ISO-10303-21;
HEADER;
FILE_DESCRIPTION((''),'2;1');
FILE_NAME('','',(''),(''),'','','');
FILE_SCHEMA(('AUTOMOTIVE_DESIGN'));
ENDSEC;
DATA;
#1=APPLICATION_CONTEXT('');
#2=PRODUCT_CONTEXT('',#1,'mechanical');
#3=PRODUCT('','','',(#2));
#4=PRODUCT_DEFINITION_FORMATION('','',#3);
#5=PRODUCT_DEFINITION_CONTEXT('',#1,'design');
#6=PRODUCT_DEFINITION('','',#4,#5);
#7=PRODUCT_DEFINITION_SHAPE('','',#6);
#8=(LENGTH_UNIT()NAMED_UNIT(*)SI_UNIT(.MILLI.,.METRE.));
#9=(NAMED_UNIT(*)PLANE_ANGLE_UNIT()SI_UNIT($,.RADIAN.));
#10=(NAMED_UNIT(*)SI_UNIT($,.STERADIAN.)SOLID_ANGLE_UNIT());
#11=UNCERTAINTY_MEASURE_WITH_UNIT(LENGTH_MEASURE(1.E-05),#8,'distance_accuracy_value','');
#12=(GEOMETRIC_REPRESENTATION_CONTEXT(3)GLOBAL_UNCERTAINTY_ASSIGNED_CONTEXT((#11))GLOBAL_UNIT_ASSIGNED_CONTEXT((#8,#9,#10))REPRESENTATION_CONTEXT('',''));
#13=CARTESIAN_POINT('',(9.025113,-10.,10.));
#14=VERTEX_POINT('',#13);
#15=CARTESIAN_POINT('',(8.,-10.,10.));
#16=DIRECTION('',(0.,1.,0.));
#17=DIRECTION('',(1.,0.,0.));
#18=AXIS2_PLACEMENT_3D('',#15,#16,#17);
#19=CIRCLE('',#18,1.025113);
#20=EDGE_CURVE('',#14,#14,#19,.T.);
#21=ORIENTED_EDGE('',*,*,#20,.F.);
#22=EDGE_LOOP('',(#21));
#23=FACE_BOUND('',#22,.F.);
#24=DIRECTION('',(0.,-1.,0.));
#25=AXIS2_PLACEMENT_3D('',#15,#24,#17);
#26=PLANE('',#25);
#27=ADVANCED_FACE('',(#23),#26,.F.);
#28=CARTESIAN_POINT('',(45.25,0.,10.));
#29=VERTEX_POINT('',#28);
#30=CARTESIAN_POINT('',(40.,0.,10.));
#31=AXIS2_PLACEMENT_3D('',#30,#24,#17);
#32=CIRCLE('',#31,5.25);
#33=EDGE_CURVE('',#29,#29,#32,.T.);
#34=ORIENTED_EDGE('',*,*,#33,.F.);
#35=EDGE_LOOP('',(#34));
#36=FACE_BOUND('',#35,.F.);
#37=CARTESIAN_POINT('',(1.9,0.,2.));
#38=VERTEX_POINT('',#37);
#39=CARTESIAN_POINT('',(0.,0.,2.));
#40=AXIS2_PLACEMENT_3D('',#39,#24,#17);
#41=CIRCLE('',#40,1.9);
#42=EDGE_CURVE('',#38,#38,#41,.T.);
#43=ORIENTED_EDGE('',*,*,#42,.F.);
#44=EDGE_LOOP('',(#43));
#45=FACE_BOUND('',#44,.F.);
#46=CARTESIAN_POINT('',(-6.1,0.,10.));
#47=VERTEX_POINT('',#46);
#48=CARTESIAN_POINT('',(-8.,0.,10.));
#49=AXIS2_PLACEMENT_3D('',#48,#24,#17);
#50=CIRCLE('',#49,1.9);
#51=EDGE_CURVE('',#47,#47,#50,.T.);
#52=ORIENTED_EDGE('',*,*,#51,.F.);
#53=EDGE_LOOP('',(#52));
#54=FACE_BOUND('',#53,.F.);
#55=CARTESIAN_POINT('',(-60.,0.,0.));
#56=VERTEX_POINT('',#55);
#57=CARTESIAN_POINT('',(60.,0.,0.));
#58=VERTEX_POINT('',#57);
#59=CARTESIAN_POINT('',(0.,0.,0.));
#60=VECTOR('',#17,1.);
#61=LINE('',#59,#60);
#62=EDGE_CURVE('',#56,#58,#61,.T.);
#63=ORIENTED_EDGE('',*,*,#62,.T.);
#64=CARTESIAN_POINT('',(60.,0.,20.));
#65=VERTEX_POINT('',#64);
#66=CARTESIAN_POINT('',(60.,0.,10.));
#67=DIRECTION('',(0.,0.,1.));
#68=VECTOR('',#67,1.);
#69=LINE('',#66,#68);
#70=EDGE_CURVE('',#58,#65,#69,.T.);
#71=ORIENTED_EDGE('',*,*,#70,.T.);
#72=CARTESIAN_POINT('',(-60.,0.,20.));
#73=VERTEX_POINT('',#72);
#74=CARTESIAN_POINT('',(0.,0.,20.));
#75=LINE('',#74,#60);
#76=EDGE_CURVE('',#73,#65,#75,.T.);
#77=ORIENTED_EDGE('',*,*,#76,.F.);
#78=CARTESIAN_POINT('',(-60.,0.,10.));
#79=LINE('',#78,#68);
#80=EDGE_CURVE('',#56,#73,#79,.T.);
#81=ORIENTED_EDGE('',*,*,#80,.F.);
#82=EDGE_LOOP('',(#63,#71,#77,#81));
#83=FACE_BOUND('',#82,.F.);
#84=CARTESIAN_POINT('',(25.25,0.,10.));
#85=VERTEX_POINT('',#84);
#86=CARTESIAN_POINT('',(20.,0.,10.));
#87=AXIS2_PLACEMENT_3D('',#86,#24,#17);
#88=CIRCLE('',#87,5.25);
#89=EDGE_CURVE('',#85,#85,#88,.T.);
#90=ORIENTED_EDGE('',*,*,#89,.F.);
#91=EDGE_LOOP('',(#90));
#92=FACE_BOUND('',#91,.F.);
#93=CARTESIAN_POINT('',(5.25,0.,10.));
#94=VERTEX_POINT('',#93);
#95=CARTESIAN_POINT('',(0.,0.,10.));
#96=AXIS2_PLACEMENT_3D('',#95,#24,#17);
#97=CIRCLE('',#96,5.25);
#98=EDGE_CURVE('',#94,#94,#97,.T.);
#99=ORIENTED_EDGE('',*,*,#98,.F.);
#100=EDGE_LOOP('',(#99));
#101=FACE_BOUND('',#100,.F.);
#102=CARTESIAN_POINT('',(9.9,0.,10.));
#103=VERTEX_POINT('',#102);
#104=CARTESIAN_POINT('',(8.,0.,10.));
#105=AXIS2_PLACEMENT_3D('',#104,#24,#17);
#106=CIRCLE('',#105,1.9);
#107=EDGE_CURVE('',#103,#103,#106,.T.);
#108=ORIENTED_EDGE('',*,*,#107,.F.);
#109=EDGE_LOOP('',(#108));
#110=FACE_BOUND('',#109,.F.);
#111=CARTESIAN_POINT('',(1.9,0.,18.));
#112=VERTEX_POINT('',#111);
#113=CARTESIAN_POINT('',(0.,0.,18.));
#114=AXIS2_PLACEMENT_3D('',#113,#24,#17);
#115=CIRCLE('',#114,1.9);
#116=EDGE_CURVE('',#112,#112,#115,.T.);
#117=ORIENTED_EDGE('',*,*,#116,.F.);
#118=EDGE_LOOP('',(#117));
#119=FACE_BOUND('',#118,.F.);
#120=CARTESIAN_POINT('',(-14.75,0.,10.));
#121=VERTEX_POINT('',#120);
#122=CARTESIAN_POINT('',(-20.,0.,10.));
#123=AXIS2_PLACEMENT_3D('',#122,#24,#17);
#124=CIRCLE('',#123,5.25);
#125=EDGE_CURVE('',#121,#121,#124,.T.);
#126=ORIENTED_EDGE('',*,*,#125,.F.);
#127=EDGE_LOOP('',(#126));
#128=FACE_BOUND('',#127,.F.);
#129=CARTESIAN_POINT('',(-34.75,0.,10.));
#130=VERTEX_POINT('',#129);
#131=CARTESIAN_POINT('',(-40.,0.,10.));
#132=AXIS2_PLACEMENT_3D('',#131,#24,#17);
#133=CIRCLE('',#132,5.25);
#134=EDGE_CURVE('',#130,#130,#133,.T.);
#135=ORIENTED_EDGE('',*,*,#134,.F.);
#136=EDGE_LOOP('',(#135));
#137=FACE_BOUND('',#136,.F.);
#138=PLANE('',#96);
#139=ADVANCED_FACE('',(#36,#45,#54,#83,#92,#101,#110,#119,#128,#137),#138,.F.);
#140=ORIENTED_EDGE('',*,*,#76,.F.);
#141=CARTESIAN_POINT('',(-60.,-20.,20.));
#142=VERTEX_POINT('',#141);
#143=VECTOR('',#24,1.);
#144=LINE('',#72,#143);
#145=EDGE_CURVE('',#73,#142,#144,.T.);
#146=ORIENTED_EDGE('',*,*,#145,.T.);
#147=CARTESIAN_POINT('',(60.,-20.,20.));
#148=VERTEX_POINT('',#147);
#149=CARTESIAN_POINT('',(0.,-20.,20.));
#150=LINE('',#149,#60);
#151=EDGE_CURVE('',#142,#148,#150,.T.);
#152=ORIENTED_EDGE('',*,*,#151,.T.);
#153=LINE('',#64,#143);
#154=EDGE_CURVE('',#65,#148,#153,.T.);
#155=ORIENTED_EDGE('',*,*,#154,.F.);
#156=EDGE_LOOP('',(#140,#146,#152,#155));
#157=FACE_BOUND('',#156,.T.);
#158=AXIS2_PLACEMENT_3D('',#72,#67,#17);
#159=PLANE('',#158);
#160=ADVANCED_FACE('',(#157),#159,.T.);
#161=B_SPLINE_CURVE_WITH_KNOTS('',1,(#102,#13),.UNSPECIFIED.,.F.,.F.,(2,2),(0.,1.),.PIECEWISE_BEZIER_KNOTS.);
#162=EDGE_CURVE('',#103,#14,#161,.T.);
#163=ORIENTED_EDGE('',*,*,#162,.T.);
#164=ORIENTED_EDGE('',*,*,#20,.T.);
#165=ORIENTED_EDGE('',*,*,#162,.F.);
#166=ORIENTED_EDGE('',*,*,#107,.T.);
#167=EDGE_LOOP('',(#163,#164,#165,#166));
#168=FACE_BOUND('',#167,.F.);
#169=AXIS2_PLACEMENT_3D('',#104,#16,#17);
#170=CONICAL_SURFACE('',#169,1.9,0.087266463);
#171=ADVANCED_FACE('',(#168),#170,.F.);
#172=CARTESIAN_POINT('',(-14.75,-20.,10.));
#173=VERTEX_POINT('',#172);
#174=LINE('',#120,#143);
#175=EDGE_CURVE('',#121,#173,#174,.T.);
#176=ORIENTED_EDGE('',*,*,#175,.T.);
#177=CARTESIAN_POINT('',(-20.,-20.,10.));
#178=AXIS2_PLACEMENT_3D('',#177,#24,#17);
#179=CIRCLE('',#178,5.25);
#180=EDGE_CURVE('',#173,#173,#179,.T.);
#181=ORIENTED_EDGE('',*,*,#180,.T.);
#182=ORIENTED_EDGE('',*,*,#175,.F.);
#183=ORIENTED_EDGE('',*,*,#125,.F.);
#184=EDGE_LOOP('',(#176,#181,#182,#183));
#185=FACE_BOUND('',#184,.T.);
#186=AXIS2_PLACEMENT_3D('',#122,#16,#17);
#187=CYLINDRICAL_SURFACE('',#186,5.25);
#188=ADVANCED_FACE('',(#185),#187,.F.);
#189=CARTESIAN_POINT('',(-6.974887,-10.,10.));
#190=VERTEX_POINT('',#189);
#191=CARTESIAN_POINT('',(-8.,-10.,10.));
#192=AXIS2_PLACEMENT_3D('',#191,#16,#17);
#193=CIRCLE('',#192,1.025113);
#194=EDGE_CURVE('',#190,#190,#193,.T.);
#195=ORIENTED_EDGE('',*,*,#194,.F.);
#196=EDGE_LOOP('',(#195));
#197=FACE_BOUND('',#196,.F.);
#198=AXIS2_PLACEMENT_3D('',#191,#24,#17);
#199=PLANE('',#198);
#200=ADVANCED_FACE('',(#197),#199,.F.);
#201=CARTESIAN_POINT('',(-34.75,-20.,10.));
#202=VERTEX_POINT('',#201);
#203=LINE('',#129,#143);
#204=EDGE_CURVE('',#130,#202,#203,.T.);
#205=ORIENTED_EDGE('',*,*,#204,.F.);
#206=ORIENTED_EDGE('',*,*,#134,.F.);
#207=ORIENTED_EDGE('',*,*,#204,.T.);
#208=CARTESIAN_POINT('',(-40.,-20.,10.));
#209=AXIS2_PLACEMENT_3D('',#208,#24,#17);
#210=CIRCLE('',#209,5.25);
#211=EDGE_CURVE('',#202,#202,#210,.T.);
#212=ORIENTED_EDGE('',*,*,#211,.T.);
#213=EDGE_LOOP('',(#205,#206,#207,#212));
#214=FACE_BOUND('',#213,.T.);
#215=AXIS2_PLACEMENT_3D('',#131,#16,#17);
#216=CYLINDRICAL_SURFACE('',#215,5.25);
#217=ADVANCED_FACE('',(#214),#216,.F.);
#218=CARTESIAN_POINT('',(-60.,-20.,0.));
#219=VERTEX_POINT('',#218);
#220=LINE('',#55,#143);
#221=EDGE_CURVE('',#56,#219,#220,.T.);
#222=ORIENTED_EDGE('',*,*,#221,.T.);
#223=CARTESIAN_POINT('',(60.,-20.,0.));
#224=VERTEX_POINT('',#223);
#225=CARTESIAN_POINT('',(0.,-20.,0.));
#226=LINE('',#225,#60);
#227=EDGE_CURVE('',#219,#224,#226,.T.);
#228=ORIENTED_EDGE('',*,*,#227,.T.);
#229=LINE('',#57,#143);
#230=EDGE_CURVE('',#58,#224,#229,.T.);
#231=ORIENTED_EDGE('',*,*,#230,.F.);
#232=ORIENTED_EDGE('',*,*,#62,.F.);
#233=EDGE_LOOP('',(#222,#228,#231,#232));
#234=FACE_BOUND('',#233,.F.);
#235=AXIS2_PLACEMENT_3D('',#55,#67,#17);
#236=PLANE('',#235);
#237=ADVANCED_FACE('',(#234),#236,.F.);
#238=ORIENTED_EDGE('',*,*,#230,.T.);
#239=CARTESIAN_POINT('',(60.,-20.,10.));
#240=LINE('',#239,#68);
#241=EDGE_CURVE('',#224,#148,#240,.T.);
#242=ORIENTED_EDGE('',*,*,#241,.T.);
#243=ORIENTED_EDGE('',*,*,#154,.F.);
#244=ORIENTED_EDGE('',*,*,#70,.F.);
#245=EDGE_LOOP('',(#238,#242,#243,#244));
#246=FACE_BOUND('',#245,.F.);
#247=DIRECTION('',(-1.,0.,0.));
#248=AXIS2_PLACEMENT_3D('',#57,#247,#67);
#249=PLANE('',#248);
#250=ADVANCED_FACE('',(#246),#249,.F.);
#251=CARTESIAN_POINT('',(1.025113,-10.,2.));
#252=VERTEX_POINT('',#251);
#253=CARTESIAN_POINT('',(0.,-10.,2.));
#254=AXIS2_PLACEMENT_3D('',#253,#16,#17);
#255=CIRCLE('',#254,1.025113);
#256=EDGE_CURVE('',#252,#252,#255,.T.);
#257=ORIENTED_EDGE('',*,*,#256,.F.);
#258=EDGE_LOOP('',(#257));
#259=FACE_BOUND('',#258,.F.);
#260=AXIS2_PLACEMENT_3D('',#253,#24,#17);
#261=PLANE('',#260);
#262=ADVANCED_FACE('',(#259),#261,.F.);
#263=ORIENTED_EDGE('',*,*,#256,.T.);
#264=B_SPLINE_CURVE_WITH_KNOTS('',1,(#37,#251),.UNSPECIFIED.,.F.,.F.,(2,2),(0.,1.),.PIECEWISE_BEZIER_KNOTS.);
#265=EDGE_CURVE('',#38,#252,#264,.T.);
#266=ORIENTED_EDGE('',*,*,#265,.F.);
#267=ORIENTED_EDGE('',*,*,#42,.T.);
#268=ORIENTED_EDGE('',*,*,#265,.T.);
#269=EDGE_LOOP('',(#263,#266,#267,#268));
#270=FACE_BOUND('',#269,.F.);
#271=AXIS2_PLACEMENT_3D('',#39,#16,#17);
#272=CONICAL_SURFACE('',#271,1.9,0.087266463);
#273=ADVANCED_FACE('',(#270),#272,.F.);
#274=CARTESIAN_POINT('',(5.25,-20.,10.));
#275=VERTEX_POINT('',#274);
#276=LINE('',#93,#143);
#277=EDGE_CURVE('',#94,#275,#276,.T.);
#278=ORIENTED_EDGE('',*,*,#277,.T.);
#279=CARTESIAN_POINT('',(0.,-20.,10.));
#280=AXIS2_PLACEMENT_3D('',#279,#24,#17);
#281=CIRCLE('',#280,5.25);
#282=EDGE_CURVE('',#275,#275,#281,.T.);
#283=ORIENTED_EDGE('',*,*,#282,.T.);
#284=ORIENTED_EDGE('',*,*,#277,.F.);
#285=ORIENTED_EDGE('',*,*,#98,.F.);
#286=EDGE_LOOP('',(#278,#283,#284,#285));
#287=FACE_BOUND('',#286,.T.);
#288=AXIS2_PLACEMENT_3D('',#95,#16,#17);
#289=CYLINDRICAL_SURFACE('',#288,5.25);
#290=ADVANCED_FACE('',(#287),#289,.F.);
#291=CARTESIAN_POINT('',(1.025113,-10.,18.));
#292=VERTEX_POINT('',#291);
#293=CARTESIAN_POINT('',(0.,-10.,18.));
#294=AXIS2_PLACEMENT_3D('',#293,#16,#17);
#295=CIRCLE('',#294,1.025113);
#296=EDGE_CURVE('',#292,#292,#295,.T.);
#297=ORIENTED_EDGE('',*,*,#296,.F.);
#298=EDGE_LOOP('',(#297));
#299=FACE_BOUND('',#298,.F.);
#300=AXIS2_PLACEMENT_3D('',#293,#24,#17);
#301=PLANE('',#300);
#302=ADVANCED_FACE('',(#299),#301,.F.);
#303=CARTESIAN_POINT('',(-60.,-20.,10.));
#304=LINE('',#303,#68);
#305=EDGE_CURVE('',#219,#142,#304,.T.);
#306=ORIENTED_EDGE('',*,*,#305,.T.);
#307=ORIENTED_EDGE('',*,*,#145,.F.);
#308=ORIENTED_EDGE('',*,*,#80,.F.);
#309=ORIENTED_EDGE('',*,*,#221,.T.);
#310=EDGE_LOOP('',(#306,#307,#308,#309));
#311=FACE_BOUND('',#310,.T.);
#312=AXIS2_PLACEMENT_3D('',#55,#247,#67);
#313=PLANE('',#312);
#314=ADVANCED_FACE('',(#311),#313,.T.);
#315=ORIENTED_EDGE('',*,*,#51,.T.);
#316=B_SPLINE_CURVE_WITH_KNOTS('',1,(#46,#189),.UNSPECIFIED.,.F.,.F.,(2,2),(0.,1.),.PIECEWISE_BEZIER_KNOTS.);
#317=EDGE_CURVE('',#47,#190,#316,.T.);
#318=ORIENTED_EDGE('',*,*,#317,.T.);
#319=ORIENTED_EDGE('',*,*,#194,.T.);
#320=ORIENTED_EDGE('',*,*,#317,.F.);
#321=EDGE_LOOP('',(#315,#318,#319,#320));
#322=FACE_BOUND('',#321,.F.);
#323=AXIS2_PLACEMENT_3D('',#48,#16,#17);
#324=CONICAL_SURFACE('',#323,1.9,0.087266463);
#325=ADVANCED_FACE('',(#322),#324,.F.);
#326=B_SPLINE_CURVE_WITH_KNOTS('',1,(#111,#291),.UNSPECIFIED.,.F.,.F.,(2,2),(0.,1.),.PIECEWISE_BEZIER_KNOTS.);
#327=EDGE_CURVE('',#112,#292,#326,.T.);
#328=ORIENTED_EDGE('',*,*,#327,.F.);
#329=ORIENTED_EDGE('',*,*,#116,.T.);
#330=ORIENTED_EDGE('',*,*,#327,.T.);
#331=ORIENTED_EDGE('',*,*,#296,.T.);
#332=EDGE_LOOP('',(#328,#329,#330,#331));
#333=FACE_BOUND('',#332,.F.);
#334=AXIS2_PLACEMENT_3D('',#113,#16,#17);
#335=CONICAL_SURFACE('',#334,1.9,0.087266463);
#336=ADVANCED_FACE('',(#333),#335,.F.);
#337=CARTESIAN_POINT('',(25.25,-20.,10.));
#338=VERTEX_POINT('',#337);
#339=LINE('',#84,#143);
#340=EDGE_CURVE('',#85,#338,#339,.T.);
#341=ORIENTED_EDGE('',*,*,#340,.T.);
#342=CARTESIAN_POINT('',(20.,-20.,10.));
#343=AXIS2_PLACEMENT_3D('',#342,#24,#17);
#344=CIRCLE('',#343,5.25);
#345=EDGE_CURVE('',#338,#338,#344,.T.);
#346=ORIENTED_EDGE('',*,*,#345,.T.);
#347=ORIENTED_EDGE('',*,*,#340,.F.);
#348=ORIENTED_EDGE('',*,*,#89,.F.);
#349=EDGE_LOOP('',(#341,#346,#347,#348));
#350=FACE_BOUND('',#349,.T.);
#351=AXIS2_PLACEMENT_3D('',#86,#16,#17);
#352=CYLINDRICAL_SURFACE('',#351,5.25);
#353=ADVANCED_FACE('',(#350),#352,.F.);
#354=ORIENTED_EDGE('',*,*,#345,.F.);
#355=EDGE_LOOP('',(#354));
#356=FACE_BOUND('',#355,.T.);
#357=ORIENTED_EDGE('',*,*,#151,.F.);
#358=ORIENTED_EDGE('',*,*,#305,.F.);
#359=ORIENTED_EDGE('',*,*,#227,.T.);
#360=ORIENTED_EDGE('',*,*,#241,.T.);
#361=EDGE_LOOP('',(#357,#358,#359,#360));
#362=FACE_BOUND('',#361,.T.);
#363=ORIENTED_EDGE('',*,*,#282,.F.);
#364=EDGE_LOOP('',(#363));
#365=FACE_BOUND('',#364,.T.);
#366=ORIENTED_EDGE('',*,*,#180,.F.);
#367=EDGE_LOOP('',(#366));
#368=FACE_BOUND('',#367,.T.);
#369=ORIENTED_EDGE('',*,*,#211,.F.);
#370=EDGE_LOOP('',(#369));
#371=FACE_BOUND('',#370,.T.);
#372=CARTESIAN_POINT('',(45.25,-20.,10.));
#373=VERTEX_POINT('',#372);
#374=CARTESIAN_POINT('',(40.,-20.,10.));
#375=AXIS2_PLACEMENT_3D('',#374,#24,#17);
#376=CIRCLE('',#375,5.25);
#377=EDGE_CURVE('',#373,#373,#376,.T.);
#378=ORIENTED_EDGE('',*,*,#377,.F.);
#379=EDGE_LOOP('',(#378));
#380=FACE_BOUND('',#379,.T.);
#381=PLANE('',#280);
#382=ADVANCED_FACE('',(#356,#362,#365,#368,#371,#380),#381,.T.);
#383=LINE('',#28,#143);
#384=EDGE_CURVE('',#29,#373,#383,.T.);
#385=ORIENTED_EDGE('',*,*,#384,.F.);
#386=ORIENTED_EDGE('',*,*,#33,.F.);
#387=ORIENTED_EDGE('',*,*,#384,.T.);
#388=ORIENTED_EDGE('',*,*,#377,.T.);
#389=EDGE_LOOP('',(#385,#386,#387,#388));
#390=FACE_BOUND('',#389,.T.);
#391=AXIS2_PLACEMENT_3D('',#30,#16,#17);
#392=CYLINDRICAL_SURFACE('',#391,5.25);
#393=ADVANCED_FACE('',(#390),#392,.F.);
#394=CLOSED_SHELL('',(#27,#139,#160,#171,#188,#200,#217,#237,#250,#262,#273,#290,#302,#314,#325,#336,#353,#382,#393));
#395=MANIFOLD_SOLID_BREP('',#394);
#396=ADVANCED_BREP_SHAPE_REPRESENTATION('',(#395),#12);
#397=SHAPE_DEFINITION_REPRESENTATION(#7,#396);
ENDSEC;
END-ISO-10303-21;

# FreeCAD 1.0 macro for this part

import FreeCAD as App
import Part
import Sketcher


def add_polygon(sketch, points):
    """Adds a closed chain of lines whose ends are joined by coincident constraints."""
    first, n = sketch.GeometryCount, len(points)
    for a, b in zip(points, points[1:] + points[:1]):
        sketch.addGeometry(Part.LineSegment(App.Vector(*a, 0), App.Vector(*b, 0)), False)
    for i in range(n):
        sketch.addConstraint(Sketcher.Constraint("Coincident", first + i, 2, first + (i + 1) % n, 1))

doc = App.newDocument("Part")
body = doc.addObject("PartDesign::Body", "Body")

sketch1 = body.newObject("Sketcher::SketchObject", "Sketch")
sketch1.AttachmentSupport = (doc.getObject("XZ_Plane"), [""])
sketch1.MapMode = "FlatFace"
add_polygon(sketch1, [(-60, 20), (-60, 0), (60, 0), (60, 20)])
sketch1.addGeometry(Part.Circle(App.Vector(-40, 10, 0), App.Vector(0, 0, 1), 5), False)
sketch1.addGeometry(Part.Circle(App.Vector(-20, 10, 0), App.Vector(0, 0, 1), 5), False)
sketch1.addGeometry(Part.Circle(App.Vector(0, 10, 0), App.Vector(0, 0, 1), 5), False)
sketch1.addGeometry(Part.Circle(App.Vector(20, 10, 0), App.Vector(0, 0, 1), 5), False)
sketch1.addGeometry(Part.Circle(App.Vector(40, 10, 0), App.Vector(0, 0, 1), 5), False)
sketch1.addConstraint(Sketcher.Constraint("Vertical", 0))
sketch1.addConstraint(Sketcher.Constraint("Horizontal", 1))
sketch1.addConstraint(Sketcher.Constraint("Vertical", 2))
sketch1.addConstraint(Sketcher.Constraint("Horizontal", 3))
sketch1.addConstraint(Sketcher.Constraint("Equal", 4, 5))
sketch1.addConstraint(Sketcher.Constraint("Equal", 5, 6))
sketch1.addConstraint(Sketcher.Constraint("Equal", 6, 7))
sketch1.addConstraint(Sketcher.Constraint("Equal", 7, 8))
sketch1.addConstraint(Sketcher.Constraint("Symmetric", 0, 2, 1, 2, -1, 1))
sketch1.addConstraint(Sketcher.Constraint("Symmetric", 5, 3, 7, 3, -2))
sketch1.addConstraint(Sketcher.Constraint("Symmetric", 4, 3, 8, 3, -2))
sketch1.addConstraint(Sketcher.Constraint("PointOnObject", 6, 3, -2))
sketch1.addConstraint(Sketcher.Constraint("Horizontal", 4, 3, 5, 3))
sketch1.addConstraint(Sketcher.Constraint("Horizontal", 5, 3, 6, 3))
sketch1.addConstraint(Sketcher.Constraint("Diameter", 4, 10.5))
sketch1.addConstraint(Sketcher.Constraint("DistanceX", 1, 1, 1, 2, 120.0))
sketch1.addConstraint(Sketcher.Constraint("DistanceY", 0, 2, 0, 1, 20.0))
sketch1.addConstraint(Sketcher.Constraint("DistanceX", 4, 3, -1, 1, 40.0))
sketch1.addConstraint(Sketcher.Constraint("DistanceY", -1, 1, 4, 3, 10.0))
sketch1.addConstraint(Sketcher.Constraint("DistanceX", 5, 3, -1, 1, 20.0))
pad1 = body.newObject("PartDesign::Pad", "Pad")
pad1.Profile = sketch1
pad1.Length = 20

sketch2 = body.newObject("Sketcher::SketchObject", "Sketch001")
sketch2.AttachmentSupport = (doc.getObject("XZ_Plane"), [""])
sketch2.MapMode = "FlatFace"
sketch2.addGeometry(Part.Circle(App.Vector(8, 10, 0), App.Vector(0, 0, 1), 1.9), False)
sketch2.addGeometry(Part.Circle(App.Vector(0, 18, 0), App.Vector(0, 0, 1), 1.9), False)
sketch2.addGeometry(Part.Circle(App.Vector(-8, 10, 0), App.Vector(0, 0, 1), 1.9), False)
sketch2.addGeometry(Part.Circle(App.Vector(0, 2, 0), App.Vector(0, 0, 1), 1.9), False)
sketch2.addConstraint(Sketcher.Constraint("Equal", 0, 1))
sketch2.addConstraint(Sketcher.Constraint("Equal", 1, 2))
sketch2.addConstraint(Sketcher.Constraint("Equal", 2, 3))
sketch2.addConstraint(Sketcher.Constraint("Symmetric", 0, 3, 2, 3, -2))
sketch2.addConstraint(Sketcher.Constraint("PointOnObject", 1, 3, -2))
sketch2.addConstraint(Sketcher.Constraint("PointOnObject", 3, 3, -2))
sketch2.addConstraint(Sketcher.Constraint("Diameter", 0, 3.8))
sketch2.addConstraint(Sketcher.Constraint("DistanceX", -1, 1, 0, 3, 8.0))
sketch2.addConstraint(Sketcher.Constraint("DistanceY", -1, 1, 0, 3, 10.0))
sketch2.addConstraint(Sketcher.Constraint("DistanceY", -1, 1, 1, 3, 18.0))
sketch2.addConstraint(Sketcher.Constraint("DistanceY", -1, 1, 3, 3, 2.0))
pocket1 = body.newObject("PartDesign::Pocket", "Pocket")
pocket1.Profile = sketch2
pocket1.Length = 10
pocket1.Reversed = True
pocket1.TaperAngle = -5

doc.recompute()
